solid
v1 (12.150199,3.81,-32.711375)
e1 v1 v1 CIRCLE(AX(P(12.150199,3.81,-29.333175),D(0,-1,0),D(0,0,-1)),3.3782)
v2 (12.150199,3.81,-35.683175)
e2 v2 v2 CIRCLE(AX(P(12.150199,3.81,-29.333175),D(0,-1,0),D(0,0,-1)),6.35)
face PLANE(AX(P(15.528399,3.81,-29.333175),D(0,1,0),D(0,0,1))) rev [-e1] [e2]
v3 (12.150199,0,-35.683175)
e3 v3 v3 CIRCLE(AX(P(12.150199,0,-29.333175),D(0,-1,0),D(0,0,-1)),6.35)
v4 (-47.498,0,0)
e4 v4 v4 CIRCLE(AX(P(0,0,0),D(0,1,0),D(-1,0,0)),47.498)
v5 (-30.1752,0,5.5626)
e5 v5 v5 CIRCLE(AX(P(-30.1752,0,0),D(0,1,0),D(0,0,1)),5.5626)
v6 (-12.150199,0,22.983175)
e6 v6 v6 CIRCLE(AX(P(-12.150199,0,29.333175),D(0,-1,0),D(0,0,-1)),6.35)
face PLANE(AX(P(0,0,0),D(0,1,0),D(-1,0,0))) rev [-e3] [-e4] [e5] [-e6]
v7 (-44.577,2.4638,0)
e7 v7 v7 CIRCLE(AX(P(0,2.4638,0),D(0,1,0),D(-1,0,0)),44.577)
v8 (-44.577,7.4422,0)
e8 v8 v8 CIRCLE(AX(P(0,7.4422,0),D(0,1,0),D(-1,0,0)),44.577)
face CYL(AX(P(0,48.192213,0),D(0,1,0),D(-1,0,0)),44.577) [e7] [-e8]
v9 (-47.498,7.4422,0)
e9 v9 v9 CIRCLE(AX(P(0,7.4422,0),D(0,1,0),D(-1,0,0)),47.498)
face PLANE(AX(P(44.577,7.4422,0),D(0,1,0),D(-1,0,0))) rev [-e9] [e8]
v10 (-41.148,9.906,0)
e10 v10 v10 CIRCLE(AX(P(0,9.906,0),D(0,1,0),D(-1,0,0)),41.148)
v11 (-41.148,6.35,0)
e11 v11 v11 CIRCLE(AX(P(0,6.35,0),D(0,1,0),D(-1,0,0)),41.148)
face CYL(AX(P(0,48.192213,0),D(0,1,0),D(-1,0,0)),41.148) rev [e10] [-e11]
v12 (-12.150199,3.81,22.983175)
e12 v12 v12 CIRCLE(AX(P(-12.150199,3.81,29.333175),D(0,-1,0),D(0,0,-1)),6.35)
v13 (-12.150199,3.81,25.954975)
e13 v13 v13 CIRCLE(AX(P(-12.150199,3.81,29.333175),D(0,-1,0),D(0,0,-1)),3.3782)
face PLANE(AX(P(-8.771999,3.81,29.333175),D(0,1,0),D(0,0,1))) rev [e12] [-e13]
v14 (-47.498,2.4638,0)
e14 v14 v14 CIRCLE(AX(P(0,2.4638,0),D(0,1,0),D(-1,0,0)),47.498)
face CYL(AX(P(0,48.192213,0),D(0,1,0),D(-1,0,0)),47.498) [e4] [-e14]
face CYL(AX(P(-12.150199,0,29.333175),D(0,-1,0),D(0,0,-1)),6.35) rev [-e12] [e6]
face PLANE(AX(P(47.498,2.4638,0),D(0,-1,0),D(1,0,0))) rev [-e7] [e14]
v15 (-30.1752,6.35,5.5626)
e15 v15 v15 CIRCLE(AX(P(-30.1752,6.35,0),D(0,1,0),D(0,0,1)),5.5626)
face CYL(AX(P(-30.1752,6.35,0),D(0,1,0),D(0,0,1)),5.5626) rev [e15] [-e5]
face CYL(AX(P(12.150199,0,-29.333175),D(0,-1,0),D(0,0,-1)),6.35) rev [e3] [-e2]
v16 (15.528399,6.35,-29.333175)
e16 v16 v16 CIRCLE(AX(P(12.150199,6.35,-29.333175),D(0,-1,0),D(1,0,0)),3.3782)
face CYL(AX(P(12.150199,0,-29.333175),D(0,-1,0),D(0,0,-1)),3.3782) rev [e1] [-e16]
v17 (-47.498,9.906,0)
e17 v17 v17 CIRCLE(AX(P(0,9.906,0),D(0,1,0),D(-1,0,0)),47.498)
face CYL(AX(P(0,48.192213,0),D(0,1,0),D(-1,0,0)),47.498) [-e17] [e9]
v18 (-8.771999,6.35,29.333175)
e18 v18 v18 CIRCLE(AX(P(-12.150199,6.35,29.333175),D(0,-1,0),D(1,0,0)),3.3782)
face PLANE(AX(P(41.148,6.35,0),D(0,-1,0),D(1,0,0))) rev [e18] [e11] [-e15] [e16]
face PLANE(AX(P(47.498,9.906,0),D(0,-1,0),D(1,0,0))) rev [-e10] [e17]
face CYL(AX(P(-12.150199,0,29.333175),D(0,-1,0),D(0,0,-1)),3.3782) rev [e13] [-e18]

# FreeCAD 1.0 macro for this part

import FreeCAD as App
import Part
import Sketcher

V = App.Vector
Q = App.Units.Quantity


def add_polygon(sketch, points):
    """Adds a closed chain of lines whose ends are joined by coincident constraints."""
    first, n = sketch.GeometryCount, len(points)
    for a, b in zip(points, points[1:] + points[:1]):
        sketch.addGeometry(Part.LineSegment(App.Vector(*a, 0), App.Vector(*b, 0)), False)
    for i in range(n):
        sketch.addConstraint(Sketcher.Constraint("Coincident", first + i, 2, first + (i + 1) % n, 1))

doc = App.newDocument("Part")
body = doc.addObject("PartDesign::Body", "Body")

# Sketch on XY plane
sketch1 = body.newObject("Sketcher::SketchObject", "Sketch")
sketch1.AttachmentSupport = (doc.getObject("XY_Plane"), [""])
sketch1.MapMode = "FlatFace"
add_polygon(sketch1, [(0, 0), (47.5, 0), (47.5, 2.5), (44.6, 2.5), (44.6, 7.4), (47.5, 7.4), (47.5, 9.9), (41.1, 9.9), (41.1, 6.3), (0, 6.3)])  # lines 0-9
sketch1.addConstraint(Sketcher.Constraint("Horizontal", 0))
sketch1.addConstraint(Sketcher.Constraint("Vertical", 1))
sketch1.addConstraint(Sketcher.Constraint("Horizontal", 2))
sketch1.addConstraint(Sketcher.Constraint("Vertical", 3))
sketch1.addConstraint(Sketcher.Constraint("Horizontal", 4))
sketch1.addConstraint(Sketcher.Constraint("Vertical", 5))
sketch1.addConstraint(Sketcher.Constraint("Horizontal", 6))
sketch1.addConstraint(Sketcher.Constraint("Vertical", 7))
sketch1.addConstraint(Sketcher.Constraint("Horizontal", 8))
sketch1.addConstraint(Sketcher.Constraint("Vertical", 9))
sketch1.addConstraint(Sketcher.Constraint("Coincident", 9, 2, -1, 1))
sketch1.addConstraint(Sketcher.Constraint("Vertical", 1, 2, 4, 2))
sketch1.addConstraint(Sketcher.Constraint("Equal", 1, 5))
sketch1.addConstraint(Sketcher.Constraint("Equal", 6, 9))
sketch1.addConstraint(Sketcher.Constraint("DistanceX", 0, 1, 0, 2, Q("1.87 in")))
sketch1.addConstraint(Sketcher.Constraint("DistanceX", 6, 2, 6, 1, Q("0.25 in")))
sketch1.addConstraint(Sketcher.Constraint("DistanceY", 7, 2, 7, 1, Q("0.14 in")))
sketch1.addConstraint(Sketcher.Constraint("DistanceX", 2, 2, 2, 1, Q("0.115 in")))
sketch1.addConstraint(Sketcher.Constraint("DistanceY", 1, 1, 1, 2, Q("0.097 in")))
revolution = body.newObject("PartDesign::Revolution", "Revolution")
revolution.Profile = sketch1
revolution.ReferenceAxis = (sketch1, ["V_Axis"])
revolution.Angle = 360

# Sketch on XZ plane
sketch2 = body.newObject("Sketcher::SketchObject", "Sketch001")
sketch2.AttachmentSupport = (doc.getObject("XZ_Plane"), [""])
sketch2.MapMode = "FlatFace"
sketch2.AttachmentOffset = App.Placement(V(0, 0, -0.25 * 25.4), App.Rotation())
sketch2.addGeometry(Part.Circle(V(-30, 0, 0), V(0, 0, 1), 6), False)
sketch2.addConstraint(Sketcher.Constraint("PointOnObject", 0, 3, -1))
sketch2.addConstraint(Sketcher.Constraint("Diameter", 0, Q("0.438 in")))
sketch2.addConstraint(Sketcher.Constraint("DistanceX", 0, 3, -1, 1, Q("1.188 in")))
doc.recompute()
hole = body.newObject("PartDesign::Hole", "Hole")
hole.Profile = sketch2
hole.ThreadType = "None"
hole.Diameter = Q("0.438 in")
hole.DepthType = "ThroughAll"
hole.Reversed = True

# Sketch on XZ plane
sketch3 = body.newObject("Sketcher::SketchObject", "Sketch002")
sketch3.AttachmentSupport = (doc.getObject("XZ_Plane"), [""])
sketch3.MapMode = "FlatFace"
sketch3.addGeometry(Part.Circle(V(12.2, -29.3, 0), V(0, 0, 1), 3.4), False)
sketch3.addGeometry(Part.Circle(V(-12.2, 29.3, 0), V(0, 0, 1), 3.4), False)
sketch3.addConstraint(Sketcher.Constraint("Equal", 0, 1))
sketch3.addConstraint(Sketcher.Constraint("Symmetric", 0, 3, 1, 3, -1, 1))
sketch3.addConstraint(Sketcher.Constraint("Diameter", 0, Q("0.266 in")))
sketch3.addConstraint(Sketcher.Constraint("DistanceX", -1, 1, 0, 3, Q("12.150199 mm")))
sketch3.addConstraint(Sketcher.Constraint("DistanceY", 0, 3, 1, 3, Q("58.66635 mm")))
doc.recompute()
hole2 = body.newObject("PartDesign::Hole", "Hole001")
hole2.Profile = sketch3
hole2.ThreadType = "None"
hole2.Diameter = Q("0.266 in")
hole2.DepthType = "ThroughAll"
hole2.HoleCutType = "Counterbore"
hole2.HoleCutDiameter = Q("0.5 in")
hole2.HoleCutDepth = Q("0.15 in")

doc.recompute()
